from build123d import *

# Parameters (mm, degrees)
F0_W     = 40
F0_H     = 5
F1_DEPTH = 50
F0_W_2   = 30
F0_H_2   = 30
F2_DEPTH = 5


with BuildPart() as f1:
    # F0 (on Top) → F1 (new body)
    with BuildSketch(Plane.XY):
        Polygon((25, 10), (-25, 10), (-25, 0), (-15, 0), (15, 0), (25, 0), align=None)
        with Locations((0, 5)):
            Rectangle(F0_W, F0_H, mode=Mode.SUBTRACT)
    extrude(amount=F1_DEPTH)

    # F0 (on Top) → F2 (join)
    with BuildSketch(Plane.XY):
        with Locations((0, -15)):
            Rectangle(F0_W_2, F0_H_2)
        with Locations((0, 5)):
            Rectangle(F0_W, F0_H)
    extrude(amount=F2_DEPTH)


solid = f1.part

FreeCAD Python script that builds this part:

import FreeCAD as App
import Part
import Sketcher
from FreeCAD import Vector

doc = App.newDocument("Part")
body = doc.addObject("PartDesign::Body", "Body")

# Sketch on XY plane
sketch1 = body.newObject("Sketcher::SketchObject", "Sketch")
sketch1.AttachmentSupport = (doc.getObject("XY_Plane"), [""])
sketch1.MapMode = "FlatFace"
sketch1.addGeometry(Part.LineSegment(Vector(25, 10, 0), Vector(-25, 10, 0)), False)
sketch1.addGeometry(Part.LineSegment(Vector(-25, 10, 0), Vector(-25, 0, 0)), False)
sketch1.addGeometry(Part.LineSegment(Vector(-25, 0, 0), Vector(25, 0, 0)), False)
sketch1.addGeometry(Part.LineSegment(Vector(25, 0, 0), Vector(25, 10, 0)), False)
sketch1.addGeometry(Part.LineSegment(Vector(20, 2.5, 0), Vector(-20, 2.5, 0)), False)
sketch1.addGeometry(Part.LineSegment(Vector(-20, 2.5, 0), Vector(-20, 7.5, 0)), False)
sketch1.addGeometry(Part.LineSegment(Vector(-20, 7.5, 0), Vector(20, 7.5, 0)), False)
sketch1.addGeometry(Part.LineSegment(Vector(20, 7.5, 0), Vector(20, 2.5, 0)), False)
sketch1.addConstraint(Sketcher.Constraint("Coincident", 0, 2, 1, 1))
sketch1.addConstraint(Sketcher.Constraint("Coincident", 1, 2, 2, 1))
sketch1.addConstraint(Sketcher.Constraint("Coincident", 2, 2, 3, 1))
sketch1.addConstraint(Sketcher.Constraint("Coincident", 3, 2, 0, 1))
sketch1.addConstraint(Sketcher.Constraint("Coincident", 4, 2, 5, 1))
sketch1.addConstraint(Sketcher.Constraint("Coincident", 5, 2, 6, 1))
sketch1.addConstraint(Sketcher.Constraint("Coincident", 6, 2, 7, 1))
sketch1.addConstraint(Sketcher.Constraint("Coincident", 7, 2, 4, 1))
sketch1.addConstraint(Sketcher.Constraint("Horizontal", 0))
sketch1.addConstraint(Sketcher.Constraint("Vertical", 1))
sketch1.addConstraint(Sketcher.Constraint("Horizontal", 2))
sketch1.addConstraint(Sketcher.Constraint("Vertical", 3))
sketch1.addConstraint(Sketcher.Constraint("Horizontal", 4))
sketch1.addConstraint(Sketcher.Constraint("Vertical", 5))
sketch1.addConstraint(Sketcher.Constraint("Horizontal", 6))
sketch1.addConstraint(Sketcher.Constraint("Vertical", 7))
sketch1.addConstraint(Sketcher.Constraint("Symmetric", 1, 2, 2, 2, -1, 1))
sketch1.addConstraint(Sketcher.Constraint("DistanceX", 0, 2, 0, 1, 50.0))
sketch1.addConstraint(Sketcher.Constraint("DistanceX", 4, 2, 4, 1, 40.0))
sketch1.addConstraint(Sketcher.Constraint("DistanceY", 1, 2, 1, 1, 10.0))
sketch1.addConstraint(Sketcher.Constraint("DistanceY", 5, 1, 5, 2, 5.0))
sketch1.addConstraint(Sketcher.Constraint("DistanceX", 4, 2, -1, 1, 20.0))
sketch1.addConstraint(Sketcher.Constraint("DistanceY", -1, 1, 4, 2, 2.5))
pad1 = body.newObject("PartDesign::Pad", "Pad")
pad1.Profile = sketch1
pad1.Length = 50

# Sketch on XY plane
sketch2 = body.newObject("Sketcher::SketchObject", "Sketch001")
sketch2.AttachmentSupport = (doc.getObject("XY_Plane"), [""])
sketch2.MapMode = "FlatFace"
sketch2.addGeometry(Part.LineSegment(Vector(-15, 0, 0), Vector(-15, -30, 0)), False)
sketch2.addGeometry(Part.LineSegment(Vector(-15, -30, 0), Vector(15, -30, 0)), False)
sketch2.addGeometry(Part.LineSegment(Vector(15, -30, 0), Vector(15, 0, 0)), False)
sketch2.addGeometry(Part.LineSegment(Vector(15, 0, 0), Vector(-15, 0, 0)), False)
sketch2.addGeometry(Part.LineSegment(Vector(-20, 7.5, 0), Vector(-20, 2.5, 0)), False)
sketch2.addGeometry(Part.LineSegment(Vector(-20, 2.5, 0), Vector(20, 2.5, 0)), False)
sketch2.addGeometry(Part.LineSegment(Vector(20, 2.5, 0), Vector(20, 7.5, 0)), False)
sketch2.addGeometry(Part.LineSegment(Vector(20, 7.5, 0), Vector(-20, 7.5, 0)), False)
sketch2.addConstraint(Sketcher.Constraint("Coincident", 0, 2, 1, 1))
sketch2.addConstraint(Sketcher.Constraint("Coincident", 1, 2, 2, 1))
sketch2.addConstraint(Sketcher.Constraint("Coincident", 2, 2, 3, 1))
sketch2.addConstraint(Sketcher.Constraint("Coincident", 3, 2, 0, 1))
sketch2.addConstraint(Sketcher.Constraint("Coincident", 4, 2, 5, 1))
sketch2.addConstraint(Sketcher.Constraint("Coincident", 5, 2, 6, 1))
sketch2.addConstraint(Sketcher.Constraint("Coincident", 6, 2, 7, 1))
sketch2.addConstraint(Sketcher.Constraint("Coincident", 7, 2, 4, 1))
sketch2.addConstraint(Sketcher.Constraint("Vertical", 0))
sketch2.addConstraint(Sketcher.Constraint("Horizontal", 1))
sketch2.addConstraint(Sketcher.Constraint("Vertical", 2))
sketch2.addConstraint(Sketcher.Constraint("Horizontal", 3))
sketch2.addConstraint(Sketcher.Constraint("Vertical", 4))
sketch2.addConstraint(Sketcher.Constraint("Horizontal", 5))
sketch2.addConstraint(Sketcher.Constraint("Vertical", 6))
sketch2.addConstraint(Sketcher.Constraint("Horizontal", 7))
sketch2.addConstraint(Sketcher.Constraint("Symmetric", 2, 2, 3, 2, -1, 1))
sketch2.addConstraint(Sketcher.Constraint("Equal", 3, 0))
sketch2.addConstraint(Sketcher.Constraint("DistanceX", 1, 1, 1, 2, 30.0))
sketch2.addConstraint(Sketcher.Constraint("DistanceX", 5, 1, 5, 2, 40.0))
sketch2.addConstraint(Sketcher.Constraint("DistanceY", 4, 2, 4, 1, 5.0))
sketch2.addConstraint(Sketcher.Constraint("DistanceX", 4, 2, -1, 1, 20.0))
sketch2.addConstraint(Sketcher.Constraint("DistanceY", -1, 1, 4, 2, 2.5))
pad2 = body.newObject("PartDesign::Pad", "Pad001")
pad2.Profile = sketch2
pad2.Length = 5

doc.recompute()
